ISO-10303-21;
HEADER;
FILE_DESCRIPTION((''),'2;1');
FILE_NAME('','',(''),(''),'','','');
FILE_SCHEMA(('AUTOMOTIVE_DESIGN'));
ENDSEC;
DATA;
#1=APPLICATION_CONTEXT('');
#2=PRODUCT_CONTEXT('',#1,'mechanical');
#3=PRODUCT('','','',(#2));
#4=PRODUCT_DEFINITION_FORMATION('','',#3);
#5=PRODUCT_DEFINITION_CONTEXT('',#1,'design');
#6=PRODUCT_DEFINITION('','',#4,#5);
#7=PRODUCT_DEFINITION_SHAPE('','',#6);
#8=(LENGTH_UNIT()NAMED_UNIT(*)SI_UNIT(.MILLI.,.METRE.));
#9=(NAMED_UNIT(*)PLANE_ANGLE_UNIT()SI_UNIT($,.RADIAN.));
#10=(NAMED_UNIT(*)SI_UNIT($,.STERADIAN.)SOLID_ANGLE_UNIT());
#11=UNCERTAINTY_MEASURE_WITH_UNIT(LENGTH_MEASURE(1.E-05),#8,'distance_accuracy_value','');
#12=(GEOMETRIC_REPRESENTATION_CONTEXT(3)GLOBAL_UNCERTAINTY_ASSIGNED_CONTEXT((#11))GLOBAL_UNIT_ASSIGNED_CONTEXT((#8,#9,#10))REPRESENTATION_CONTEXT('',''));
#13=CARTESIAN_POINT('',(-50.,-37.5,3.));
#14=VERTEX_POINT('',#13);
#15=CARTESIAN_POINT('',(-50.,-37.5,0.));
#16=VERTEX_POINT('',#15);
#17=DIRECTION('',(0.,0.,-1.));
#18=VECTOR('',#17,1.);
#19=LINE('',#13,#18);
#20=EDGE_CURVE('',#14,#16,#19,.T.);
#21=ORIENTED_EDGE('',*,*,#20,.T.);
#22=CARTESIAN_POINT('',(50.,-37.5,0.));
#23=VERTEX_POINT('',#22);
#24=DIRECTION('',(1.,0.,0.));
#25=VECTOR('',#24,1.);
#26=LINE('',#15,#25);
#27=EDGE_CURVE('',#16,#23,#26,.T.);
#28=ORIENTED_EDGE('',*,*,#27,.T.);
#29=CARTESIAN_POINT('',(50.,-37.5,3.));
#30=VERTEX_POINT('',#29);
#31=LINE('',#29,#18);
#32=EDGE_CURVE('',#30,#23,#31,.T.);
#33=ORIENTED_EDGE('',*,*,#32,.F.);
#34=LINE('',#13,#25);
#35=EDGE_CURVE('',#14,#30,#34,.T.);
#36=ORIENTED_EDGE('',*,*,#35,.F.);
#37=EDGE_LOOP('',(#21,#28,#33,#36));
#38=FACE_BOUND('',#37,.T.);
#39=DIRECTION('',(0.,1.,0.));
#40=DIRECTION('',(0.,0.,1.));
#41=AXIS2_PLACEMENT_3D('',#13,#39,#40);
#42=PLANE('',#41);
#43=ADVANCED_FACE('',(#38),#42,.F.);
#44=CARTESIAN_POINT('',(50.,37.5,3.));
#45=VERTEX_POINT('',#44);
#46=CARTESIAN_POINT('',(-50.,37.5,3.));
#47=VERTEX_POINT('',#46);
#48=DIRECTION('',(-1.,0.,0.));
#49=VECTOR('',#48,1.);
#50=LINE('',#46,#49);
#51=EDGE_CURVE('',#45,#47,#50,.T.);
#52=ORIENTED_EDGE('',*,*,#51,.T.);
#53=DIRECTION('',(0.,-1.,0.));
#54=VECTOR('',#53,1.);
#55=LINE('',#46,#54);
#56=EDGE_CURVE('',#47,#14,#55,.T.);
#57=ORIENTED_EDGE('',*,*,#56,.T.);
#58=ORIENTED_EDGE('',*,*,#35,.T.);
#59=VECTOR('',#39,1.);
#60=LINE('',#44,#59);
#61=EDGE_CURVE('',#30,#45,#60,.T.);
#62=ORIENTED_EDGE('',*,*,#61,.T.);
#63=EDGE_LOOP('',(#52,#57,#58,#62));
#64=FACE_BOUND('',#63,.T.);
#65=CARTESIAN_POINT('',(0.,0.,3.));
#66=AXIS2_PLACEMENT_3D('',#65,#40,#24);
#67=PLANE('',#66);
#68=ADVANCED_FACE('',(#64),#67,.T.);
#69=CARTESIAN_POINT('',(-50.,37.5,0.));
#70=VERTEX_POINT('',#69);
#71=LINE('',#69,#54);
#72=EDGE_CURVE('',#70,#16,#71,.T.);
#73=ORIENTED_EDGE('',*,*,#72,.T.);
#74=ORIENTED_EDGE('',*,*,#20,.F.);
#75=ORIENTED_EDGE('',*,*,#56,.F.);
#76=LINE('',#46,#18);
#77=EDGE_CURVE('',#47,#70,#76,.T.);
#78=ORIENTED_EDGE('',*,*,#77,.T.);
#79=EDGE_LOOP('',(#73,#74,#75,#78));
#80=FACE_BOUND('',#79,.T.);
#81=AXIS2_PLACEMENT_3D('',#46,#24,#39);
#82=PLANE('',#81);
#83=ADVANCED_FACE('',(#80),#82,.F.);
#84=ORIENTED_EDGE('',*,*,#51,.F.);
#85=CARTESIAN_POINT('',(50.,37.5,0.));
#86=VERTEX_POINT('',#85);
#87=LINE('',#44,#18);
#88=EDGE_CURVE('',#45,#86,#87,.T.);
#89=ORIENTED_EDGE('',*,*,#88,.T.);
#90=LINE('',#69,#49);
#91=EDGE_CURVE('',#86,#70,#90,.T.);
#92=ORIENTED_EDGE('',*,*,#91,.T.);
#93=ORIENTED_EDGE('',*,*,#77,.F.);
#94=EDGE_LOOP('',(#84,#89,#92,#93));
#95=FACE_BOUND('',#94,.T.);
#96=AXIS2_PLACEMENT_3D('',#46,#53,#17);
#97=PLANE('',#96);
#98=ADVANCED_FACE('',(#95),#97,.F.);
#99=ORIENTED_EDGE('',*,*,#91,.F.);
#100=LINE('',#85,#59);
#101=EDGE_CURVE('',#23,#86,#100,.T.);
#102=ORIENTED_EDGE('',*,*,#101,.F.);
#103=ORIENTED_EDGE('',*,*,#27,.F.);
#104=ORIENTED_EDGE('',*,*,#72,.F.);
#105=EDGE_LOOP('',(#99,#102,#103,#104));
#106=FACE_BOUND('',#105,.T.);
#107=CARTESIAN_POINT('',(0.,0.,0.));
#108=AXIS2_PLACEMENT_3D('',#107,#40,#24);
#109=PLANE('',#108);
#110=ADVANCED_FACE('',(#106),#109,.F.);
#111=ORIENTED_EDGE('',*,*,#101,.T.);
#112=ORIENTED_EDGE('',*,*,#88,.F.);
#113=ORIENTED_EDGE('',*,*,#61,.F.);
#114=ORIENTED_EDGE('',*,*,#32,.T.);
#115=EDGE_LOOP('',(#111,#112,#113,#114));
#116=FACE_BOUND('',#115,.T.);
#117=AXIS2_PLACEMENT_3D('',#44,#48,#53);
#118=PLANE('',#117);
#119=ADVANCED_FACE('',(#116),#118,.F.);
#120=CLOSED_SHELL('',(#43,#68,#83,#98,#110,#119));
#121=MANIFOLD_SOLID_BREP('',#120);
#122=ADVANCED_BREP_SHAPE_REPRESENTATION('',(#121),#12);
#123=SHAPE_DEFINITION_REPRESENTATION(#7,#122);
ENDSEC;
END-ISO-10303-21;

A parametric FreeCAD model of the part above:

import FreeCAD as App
import Part
import Sketcher

doc = App.newDocument("Part")
params = doc.addObject("Spreadsheet::Sheet", "Params")
for row, (alias, value) in enumerate([
    ("sketch1_width", "100 mm"),
    ("sketch1_height", "75 mm"),
    ("pad1_length", "3 mm"),
], start=1):
    params.set(f"A{row}", alias)
    params.set(f"B{row}", "=" + value)
    params.setAlias(f"B{row}", alias)

body = doc.addObject("PartDesign::Body", "Body")

# Sketch on XY plane
sketch1 = doc.addObject("Sketcher::SketchObject", "Sketch")
body.addObject(sketch1)
sketch1.AttachmentSupport = (doc.XY_Plane, [""])
sketch1.MapMode = "FlatFace"
sketch1.addGeometry([
    Part.LineSegment(App.Vector(-50, 38, 0), App.Vector(-50, -38, 0)),
    Part.LineSegment(App.Vector(-50, -38, 0), App.Vector(50, -38, 0)),
    Part.LineSegment(App.Vector(50, -38, 0), App.Vector(50, 38, 0)),
    Part.LineSegment(App.Vector(50, 38, 0), App.Vector(-50, 38, 0)),
], False)
sketch1.addConstraint([
    Sketcher.Constraint("Coincident", 0, 2, 1, 1),
    Sketcher.Constraint("Coincident", 1, 2, 2, 1),
    Sketcher.Constraint("Coincident", 2, 2, 3, 1),
    Sketcher.Constraint("Coincident", 3, 2, 0, 1),
    Sketcher.Constraint("Vertical", 0),
    Sketcher.Constraint("Horizontal", 1),
    Sketcher.Constraint("Vertical", 2),
    Sketcher.Constraint("Horizontal", 3),
    Sketcher.Constraint("Symmetric", 0, 2, 2, 2, -1, 1),
    Sketcher.Constraint("DistanceX", 1, 1, 1, 2, 100.0),
    Sketcher.Constraint("DistanceY", 0, 2, 0, 1, 75.0),
])
sketch1.setExpression("Constraints[9]", "Params.sketch1_width")
sketch1.setExpression("Constraints[10]", "Params.sketch1_height")
pad1 = doc.addObject("PartDesign::Pad", "Pad")
body.addObject(pad1)
pad1.Profile = sketch1
pad1.setExpression("Length", "Params.pad1_length")

doc.recompute()
